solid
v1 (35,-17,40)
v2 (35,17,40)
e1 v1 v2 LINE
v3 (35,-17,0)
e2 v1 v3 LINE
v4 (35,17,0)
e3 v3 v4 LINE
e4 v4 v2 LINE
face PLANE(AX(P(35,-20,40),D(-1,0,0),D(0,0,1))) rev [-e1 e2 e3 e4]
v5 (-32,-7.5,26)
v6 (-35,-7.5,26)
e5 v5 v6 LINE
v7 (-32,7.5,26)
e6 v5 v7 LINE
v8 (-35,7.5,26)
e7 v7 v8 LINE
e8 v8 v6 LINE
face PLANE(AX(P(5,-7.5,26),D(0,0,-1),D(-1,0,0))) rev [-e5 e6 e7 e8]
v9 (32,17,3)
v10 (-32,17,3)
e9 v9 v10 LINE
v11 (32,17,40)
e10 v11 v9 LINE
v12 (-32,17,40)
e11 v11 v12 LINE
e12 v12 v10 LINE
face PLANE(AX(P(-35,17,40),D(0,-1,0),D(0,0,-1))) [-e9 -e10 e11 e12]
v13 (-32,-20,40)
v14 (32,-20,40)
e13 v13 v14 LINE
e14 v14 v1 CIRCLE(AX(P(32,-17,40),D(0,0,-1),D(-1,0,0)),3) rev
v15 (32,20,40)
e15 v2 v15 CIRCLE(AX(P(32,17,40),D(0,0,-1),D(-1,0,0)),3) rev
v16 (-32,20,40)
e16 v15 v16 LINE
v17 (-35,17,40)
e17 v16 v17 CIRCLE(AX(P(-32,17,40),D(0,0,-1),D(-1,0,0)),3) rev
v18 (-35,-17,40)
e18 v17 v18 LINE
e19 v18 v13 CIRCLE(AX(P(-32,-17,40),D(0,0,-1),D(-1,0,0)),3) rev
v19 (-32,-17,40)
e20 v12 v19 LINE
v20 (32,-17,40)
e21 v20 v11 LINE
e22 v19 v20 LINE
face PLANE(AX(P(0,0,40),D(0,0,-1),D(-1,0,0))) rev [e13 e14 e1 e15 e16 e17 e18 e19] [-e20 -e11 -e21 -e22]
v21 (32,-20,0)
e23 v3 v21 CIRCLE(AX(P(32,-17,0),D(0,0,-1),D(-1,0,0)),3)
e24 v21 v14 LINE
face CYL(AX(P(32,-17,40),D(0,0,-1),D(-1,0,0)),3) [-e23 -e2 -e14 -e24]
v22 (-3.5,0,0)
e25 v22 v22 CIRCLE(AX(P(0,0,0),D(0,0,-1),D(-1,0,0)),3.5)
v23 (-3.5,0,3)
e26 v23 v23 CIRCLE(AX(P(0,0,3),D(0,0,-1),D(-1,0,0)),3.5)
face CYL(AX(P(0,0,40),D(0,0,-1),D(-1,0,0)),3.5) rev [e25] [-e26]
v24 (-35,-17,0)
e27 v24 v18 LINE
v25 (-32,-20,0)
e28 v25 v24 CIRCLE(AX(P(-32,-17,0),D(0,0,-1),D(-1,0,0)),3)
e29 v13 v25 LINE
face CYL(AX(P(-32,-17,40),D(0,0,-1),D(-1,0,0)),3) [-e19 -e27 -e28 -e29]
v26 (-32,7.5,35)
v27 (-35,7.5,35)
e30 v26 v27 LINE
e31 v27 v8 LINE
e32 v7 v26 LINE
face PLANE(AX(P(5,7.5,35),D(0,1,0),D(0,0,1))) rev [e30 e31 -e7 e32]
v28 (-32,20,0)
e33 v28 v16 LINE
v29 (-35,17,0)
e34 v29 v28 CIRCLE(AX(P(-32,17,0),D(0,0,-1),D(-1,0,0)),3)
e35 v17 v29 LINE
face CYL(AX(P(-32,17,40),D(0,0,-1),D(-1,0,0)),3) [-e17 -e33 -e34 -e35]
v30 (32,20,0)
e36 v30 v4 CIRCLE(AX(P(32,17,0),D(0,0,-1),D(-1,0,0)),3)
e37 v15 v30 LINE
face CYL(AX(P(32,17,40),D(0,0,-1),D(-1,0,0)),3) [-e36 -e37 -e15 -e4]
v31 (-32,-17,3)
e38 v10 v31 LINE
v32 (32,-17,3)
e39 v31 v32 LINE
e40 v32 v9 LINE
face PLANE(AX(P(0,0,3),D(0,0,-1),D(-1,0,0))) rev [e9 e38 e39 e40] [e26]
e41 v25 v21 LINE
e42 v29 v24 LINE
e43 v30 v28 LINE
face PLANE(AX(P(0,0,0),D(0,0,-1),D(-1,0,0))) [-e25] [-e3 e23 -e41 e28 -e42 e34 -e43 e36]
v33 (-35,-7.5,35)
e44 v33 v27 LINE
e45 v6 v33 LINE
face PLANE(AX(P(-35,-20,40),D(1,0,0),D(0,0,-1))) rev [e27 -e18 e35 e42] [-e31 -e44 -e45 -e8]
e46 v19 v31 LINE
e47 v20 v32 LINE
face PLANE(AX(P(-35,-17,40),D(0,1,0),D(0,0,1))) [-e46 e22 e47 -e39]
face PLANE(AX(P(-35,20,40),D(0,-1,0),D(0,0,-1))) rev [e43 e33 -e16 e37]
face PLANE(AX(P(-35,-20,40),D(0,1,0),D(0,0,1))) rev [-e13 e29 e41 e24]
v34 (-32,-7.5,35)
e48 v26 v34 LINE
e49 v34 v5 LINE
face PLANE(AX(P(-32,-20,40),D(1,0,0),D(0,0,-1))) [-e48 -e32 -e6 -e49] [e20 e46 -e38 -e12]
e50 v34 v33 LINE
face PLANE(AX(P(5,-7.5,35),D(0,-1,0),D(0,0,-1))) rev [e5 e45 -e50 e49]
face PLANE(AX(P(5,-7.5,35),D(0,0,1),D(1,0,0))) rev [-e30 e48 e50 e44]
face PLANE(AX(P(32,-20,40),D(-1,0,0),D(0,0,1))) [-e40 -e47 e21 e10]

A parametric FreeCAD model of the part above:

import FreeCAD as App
import Part
import Sketcher
Q = App.Units.Quantity


def edges_at(feature, points):
    """Names of the edges that pass closest to the given points."""
    edges = feature.Shape.Edges
    near = lambda p: min(range(len(edges)), key=lambda i: edges[i].distToShape(Part.Vertex(*p))[0])
    return sorted({f"Edge{near(p) + 1}" for p in points})


def faces_at(feature, points):
    """Names of the faces that lie closest to the given points."""
    faces = feature.Shape.Faces
    near = lambda p: min(range(len(faces)), key=lambda i: faces[i].distToShape(Part.Vertex(*p))[0])
    return sorted({f"Face{near(p) + 1}" for p in points})

doc = App.newDocument("Part")
body = doc.addObject("PartDesign::Body", "Body")

sketch1 = doc.addObject("Sketcher::SketchObject", "Sketch")
body.addObject(sketch1)
sketch1.AttachmentSupport = (doc.XY_Plane, [""])
sketch1.MapMode = "FlatFace"
sketch1.addGeometry(Part.LineSegment(App.Vector(-35, 20, 0), App.Vector(-35, -20, 0)), False)
sketch1.addGeometry(Part.LineSegment(App.Vector(-35, -20, 0), App.Vector(35, -20, 0)), False)
sketch1.addGeometry(Part.LineSegment(App.Vector(35, -20, 0), App.Vector(35, 20, 0)), False)
sketch1.addGeometry(Part.LineSegment(App.Vector(35, 20, 0), App.Vector(-35, 20, 0)), False)
sketch1.addConstraint(Sketcher.Constraint("Coincident", 0, 2, 1, 1))
sketch1.addConstraint(Sketcher.Constraint("Coincident", 1, 2, 2, 1))
sketch1.addConstraint(Sketcher.Constraint("Coincident", 2, 2, 3, 1))
sketch1.addConstraint(Sketcher.Constraint("Coincident", 3, 2, 0, 1))
sketch1.addConstraint(Sketcher.Constraint("Vertical", 0))
sketch1.addConstraint(Sketcher.Constraint("Horizontal", 1))
sketch1.addConstraint(Sketcher.Constraint("Vertical", 2))
sketch1.addConstraint(Sketcher.Constraint("Horizontal", 3))
sketch1.addConstraint(Sketcher.Constraint("Symmetric", 0, 2, 2, 2, -1, 1))
sketch1.addConstraint(Sketcher.Constraint("DistanceX", 1, 1, 1, 2, Q("70 mm")))
sketch1.addConstraint(Sketcher.Constraint("DistanceY", 0, 2, 0, 1, Q("40 mm")))
pad1 = doc.addObject("PartDesign::Pad", "Pad")
body.addObject(pad1)
pad1.Profile = sketch1
pad1.Length = 40
doc.recompute()

thickness = doc.addObject("PartDesign::Thickness", "Thickness")
body.addObject(thickness)
thickness.Base = (pad1, faces_at(pad1, [(0, 0, 40)]))
thickness.Value = 3
thickness.Reversed = True
thickness.Join = "Intersection"

sketch2 = doc.addObject("Sketcher::SketchObject", "Sketch001")
body.addObject(sketch2)
sketch2.AttachmentSupport = (doc.XY_Plane, [""])
sketch2.MapMode = "FlatFace"
sketch2.addGeometry(Part.Circle(App.Vector(0, 0, 0), App.Vector(0, 0, 1), 3.5), False)
sketch2.addConstraint(Sketcher.Constraint("Coincident", 0, 3, -1, 1))
sketch2.addConstraint(Sketcher.Constraint("Diameter", 0, Q("7 mm")))
pocket1 = doc.addObject("PartDesign::Pocket", "Pocket")
body.addObject(pocket1)
pocket1.Profile = sketch2
pocket1.Length = 40
pocket1.Reversed = True

sketch3 = doc.addObject("Sketcher::SketchObject", "Sketch002")
body.addObject(sketch3)
sketch3.AttachmentSupport = (doc.YZ_Plane, [""])
sketch3.MapMode = "FlatFace"
sketch3.AttachmentOffset = App.Placement(App.Vector(0, 0, -35), App.Rotation())
sketch3.addGeometry(Part.LineSegment(App.Vector(8, 26, 0), App.Vector(-8, 26, 0)), False)
sketch3.addGeometry(Part.LineSegment(App.Vector(-8, 26, 0), App.Vector(-8, 35, 0)), False)
sketch3.addGeometry(Part.LineSegment(App.Vector(-8, 35, 0), App.Vector(8, 35, 0)), False)
sketch3.addGeometry(Part.LineSegment(App.Vector(8, 35, 0), App.Vector(8, 26, 0)), False)
sketch3.addConstraint(Sketcher.Constraint("Coincident", 0, 2, 1, 1))
sketch3.addConstraint(Sketcher.Constraint("Coincident", 1, 2, 2, 1))
sketch3.addConstraint(Sketcher.Constraint("Coincident", 2, 2, 3, 1))
sketch3.addConstraint(Sketcher.Constraint("Coincident", 3, 2, 0, 1))
sketch3.addConstraint(Sketcher.Constraint("Horizontal", 0))
sketch3.addConstraint(Sketcher.Constraint("Vertical", 1))
sketch3.addConstraint(Sketcher.Constraint("Horizontal", 2))
sketch3.addConstraint(Sketcher.Constraint("Vertical", 3))
sketch3.addConstraint(Sketcher.Constraint("DistanceX", 0, 2, 0, 1, Q("15 mm")))
sketch3.addConstraint(Sketcher.Constraint("DistanceY", 1, 1, 1, 2, Q("9 mm")))
sketch3.addConstraint(Sketcher.Constraint("DistanceY", -1, 1, 0, 2, Q("26 mm")))
sketch3.addConstraint(Sketcher.Constraint("DistanceX", 0, 2, -1, 1, Q("7.5 mm")))
pocket2 = doc.addObject("PartDesign::Pocket", "Pocket001")
body.addObject(pocket2)
pocket2.Profile = sketch3
pocket2.Length = 40
pocket2.Reversed = True
doc.recompute()

fillet = doc.addObject("PartDesign::Fillet", "Fillet")
body.addObject(fillet)
fillet.Base = (pocket2, edges_at(pocket2, [
    (35, -20, 20),
    (-35, -20, 20),
    (-35, 20, 20),
    (35, 20, 20),
]))
fillet.Radius = 3

doc.recompute()
